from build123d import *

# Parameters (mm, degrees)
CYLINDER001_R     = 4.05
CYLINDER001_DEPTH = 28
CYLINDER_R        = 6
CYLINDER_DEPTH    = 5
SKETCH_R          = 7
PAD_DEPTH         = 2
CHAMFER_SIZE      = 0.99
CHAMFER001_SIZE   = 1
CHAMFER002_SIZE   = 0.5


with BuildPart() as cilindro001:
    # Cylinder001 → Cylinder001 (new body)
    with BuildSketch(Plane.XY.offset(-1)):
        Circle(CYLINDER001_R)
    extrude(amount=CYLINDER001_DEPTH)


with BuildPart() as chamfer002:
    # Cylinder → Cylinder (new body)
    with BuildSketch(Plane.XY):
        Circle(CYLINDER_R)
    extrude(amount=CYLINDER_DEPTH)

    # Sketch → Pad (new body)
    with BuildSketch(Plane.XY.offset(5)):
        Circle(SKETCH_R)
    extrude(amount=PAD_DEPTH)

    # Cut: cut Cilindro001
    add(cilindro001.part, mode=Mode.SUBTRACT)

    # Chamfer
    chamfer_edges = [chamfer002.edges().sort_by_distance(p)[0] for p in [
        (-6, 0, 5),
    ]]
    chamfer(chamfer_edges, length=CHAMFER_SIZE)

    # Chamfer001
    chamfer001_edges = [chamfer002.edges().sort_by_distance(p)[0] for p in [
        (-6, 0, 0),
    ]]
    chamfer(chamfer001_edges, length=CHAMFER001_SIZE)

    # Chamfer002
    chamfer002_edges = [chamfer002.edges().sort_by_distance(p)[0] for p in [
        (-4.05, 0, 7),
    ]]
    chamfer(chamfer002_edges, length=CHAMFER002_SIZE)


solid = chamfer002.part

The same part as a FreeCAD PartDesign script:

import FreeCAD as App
import Part
import Sketcher


def edges_at(feature, points):
    """Names of the edges that pass closest to the given points."""
    edges = feature.Shape.Edges
    near = lambda p: min(range(len(edges)), key=lambda i: edges[i].distToShape(Part.Vertex(*p))[0])
    return sorted({f"Edge{near(p) + 1}" for p in points})

doc = App.newDocument("Part")
params = doc.addObject("Spreadsheet::Sheet", "Params")
for row, (alias, value) in enumerate([
    ("sketch1_diameter", "8.1 mm"),
    ("pad1_length", "28 mm"),
    ("sketch2_diameter", "12 mm"),
    ("pad2_length", "5 mm"),
    ("sketch3_diameter", "14 mm"),
    ("pad3_length", "2 mm"),
    ("chamfer_size", "0.99 mm"),
    ("chamfer2_size", "1 mm"),
    ("chamfer3_size", "0.5 mm"),
], start=1):
    params.set(f"A{row}", alias)
    params.set(f"B{row}", "=" + value)
    params.setAlias(f"B{row}", alias)

body = doc.addObject("PartDesign::Body", "Body")

# Sketch on XY plane
sketch1 = doc.addObject("Sketcher::SketchObject", "Sketch")
body.addObject(sketch1)
sketch1.AttachmentSupport = (doc.XY_Plane, [""])
sketch1.MapMode = "FlatFace"
sketch1.AttachmentOffset = App.Placement(App.Vector(0, 0, -1), App.Rotation())
sketch1.addGeometry(Part.Circle(App.Vector(0, 0, 0), App.Vector(0, 0, 1), 4.05), False)
sketch1.addConstraint([
    Sketcher.Constraint("Coincident", 0, 3, -1, 1),
    Sketcher.Constraint("Diameter", 0, 8.1),
])
sketch1.setExpression("Constraints[1]", "Params.sketch1_diameter")
pad1 = doc.addObject("PartDesign::Pad", "Pad")
body.addObject(pad1)
pad1.Profile = sketch1
pad1.setExpression("Length", "Params.pad1_length")
body2 = doc.addObject("PartDesign::Body", "Body001")

# Sketch on XY plane
sketch2 = doc.addObject("Sketcher::SketchObject", "Sketch001")
body2.addObject(sketch2)
sketch2.AttachmentSupport = (doc.getObject("XY_Plane001"), [""])
sketch2.MapMode = "FlatFace"
sketch2.addGeometry(Part.Circle(App.Vector(0, 0, 0), App.Vector(0, 0, 1), 6), False)
sketch2.addConstraint([
    Sketcher.Constraint("Coincident", 0, 3, -1, 1),
    Sketcher.Constraint("Diameter", 0, 12.0),
])
sketch2.setExpression("Constraints[1]", "Params.sketch2_diameter")
pad2 = doc.addObject("PartDesign::Pad", "Pad001")
body2.addObject(pad2)
pad2.Profile = sketch2
pad2.setExpression("Length", "Params.pad2_length")

# Sketch on XY plane
sketch3 = doc.addObject("Sketcher::SketchObject", "Sketch002")
body2.addObject(sketch3)
sketch3.AttachmentSupport = (doc.getObject("XY_Plane001"), [""])
sketch3.MapMode = "FlatFace"
sketch3.AttachmentOffset = App.Placement(App.Vector(0, 0, 5), App.Rotation())
sketch3.addGeometry(Part.Circle(App.Vector(0, 0, 0), App.Vector(0, 0, 1), 7), False)
sketch3.addConstraint([
    Sketcher.Constraint("Coincident", 0, 3, -1, 1),
    Sketcher.Constraint("Diameter", 0, 14.0),
])
sketch3.setExpression("Constraints[1]", "Params.sketch3_diameter")
pad3 = doc.addObject("PartDesign::Pad", "Pad002")
body2.addObject(pad3)
pad3.Profile = sketch3
pad3.setExpression("Length", "Params.pad3_length")
doc.recompute()

boolean = doc.addObject("PartDesign::Boolean", "Boolean")
body2.addObject(boolean)
boolean.Type = "Cut"
boolean.addObjects([body])
doc.recompute()

chamfer = doc.addObject("PartDesign::Chamfer", "Chamfer")
body2.addObject(chamfer)
chamfer.Base = (boolean, edges_at(boolean, [(-6, 0, 5)]))
chamfer.setExpression("Size", "Params.chamfer_size")
doc.recompute()

chamfer2 = doc.addObject("PartDesign::Chamfer", "Chamfer001")
body2.addObject(chamfer2)
chamfer2.Base = (chamfer, edges_at(chamfer, [(-6, 0, 0)]))
chamfer2.setExpression("Size", "Params.chamfer2_size")
doc.recompute()

chamfer3 = doc.addObject("PartDesign::Chamfer", "Chamfer002")
body2.addObject(chamfer3)
chamfer3.Base = (chamfer2, edges_at(chamfer2, [(-4.05, 0, 7)]))
chamfer3.setExpression("Size", "Params.chamfer3_size")

doc.recompute()
